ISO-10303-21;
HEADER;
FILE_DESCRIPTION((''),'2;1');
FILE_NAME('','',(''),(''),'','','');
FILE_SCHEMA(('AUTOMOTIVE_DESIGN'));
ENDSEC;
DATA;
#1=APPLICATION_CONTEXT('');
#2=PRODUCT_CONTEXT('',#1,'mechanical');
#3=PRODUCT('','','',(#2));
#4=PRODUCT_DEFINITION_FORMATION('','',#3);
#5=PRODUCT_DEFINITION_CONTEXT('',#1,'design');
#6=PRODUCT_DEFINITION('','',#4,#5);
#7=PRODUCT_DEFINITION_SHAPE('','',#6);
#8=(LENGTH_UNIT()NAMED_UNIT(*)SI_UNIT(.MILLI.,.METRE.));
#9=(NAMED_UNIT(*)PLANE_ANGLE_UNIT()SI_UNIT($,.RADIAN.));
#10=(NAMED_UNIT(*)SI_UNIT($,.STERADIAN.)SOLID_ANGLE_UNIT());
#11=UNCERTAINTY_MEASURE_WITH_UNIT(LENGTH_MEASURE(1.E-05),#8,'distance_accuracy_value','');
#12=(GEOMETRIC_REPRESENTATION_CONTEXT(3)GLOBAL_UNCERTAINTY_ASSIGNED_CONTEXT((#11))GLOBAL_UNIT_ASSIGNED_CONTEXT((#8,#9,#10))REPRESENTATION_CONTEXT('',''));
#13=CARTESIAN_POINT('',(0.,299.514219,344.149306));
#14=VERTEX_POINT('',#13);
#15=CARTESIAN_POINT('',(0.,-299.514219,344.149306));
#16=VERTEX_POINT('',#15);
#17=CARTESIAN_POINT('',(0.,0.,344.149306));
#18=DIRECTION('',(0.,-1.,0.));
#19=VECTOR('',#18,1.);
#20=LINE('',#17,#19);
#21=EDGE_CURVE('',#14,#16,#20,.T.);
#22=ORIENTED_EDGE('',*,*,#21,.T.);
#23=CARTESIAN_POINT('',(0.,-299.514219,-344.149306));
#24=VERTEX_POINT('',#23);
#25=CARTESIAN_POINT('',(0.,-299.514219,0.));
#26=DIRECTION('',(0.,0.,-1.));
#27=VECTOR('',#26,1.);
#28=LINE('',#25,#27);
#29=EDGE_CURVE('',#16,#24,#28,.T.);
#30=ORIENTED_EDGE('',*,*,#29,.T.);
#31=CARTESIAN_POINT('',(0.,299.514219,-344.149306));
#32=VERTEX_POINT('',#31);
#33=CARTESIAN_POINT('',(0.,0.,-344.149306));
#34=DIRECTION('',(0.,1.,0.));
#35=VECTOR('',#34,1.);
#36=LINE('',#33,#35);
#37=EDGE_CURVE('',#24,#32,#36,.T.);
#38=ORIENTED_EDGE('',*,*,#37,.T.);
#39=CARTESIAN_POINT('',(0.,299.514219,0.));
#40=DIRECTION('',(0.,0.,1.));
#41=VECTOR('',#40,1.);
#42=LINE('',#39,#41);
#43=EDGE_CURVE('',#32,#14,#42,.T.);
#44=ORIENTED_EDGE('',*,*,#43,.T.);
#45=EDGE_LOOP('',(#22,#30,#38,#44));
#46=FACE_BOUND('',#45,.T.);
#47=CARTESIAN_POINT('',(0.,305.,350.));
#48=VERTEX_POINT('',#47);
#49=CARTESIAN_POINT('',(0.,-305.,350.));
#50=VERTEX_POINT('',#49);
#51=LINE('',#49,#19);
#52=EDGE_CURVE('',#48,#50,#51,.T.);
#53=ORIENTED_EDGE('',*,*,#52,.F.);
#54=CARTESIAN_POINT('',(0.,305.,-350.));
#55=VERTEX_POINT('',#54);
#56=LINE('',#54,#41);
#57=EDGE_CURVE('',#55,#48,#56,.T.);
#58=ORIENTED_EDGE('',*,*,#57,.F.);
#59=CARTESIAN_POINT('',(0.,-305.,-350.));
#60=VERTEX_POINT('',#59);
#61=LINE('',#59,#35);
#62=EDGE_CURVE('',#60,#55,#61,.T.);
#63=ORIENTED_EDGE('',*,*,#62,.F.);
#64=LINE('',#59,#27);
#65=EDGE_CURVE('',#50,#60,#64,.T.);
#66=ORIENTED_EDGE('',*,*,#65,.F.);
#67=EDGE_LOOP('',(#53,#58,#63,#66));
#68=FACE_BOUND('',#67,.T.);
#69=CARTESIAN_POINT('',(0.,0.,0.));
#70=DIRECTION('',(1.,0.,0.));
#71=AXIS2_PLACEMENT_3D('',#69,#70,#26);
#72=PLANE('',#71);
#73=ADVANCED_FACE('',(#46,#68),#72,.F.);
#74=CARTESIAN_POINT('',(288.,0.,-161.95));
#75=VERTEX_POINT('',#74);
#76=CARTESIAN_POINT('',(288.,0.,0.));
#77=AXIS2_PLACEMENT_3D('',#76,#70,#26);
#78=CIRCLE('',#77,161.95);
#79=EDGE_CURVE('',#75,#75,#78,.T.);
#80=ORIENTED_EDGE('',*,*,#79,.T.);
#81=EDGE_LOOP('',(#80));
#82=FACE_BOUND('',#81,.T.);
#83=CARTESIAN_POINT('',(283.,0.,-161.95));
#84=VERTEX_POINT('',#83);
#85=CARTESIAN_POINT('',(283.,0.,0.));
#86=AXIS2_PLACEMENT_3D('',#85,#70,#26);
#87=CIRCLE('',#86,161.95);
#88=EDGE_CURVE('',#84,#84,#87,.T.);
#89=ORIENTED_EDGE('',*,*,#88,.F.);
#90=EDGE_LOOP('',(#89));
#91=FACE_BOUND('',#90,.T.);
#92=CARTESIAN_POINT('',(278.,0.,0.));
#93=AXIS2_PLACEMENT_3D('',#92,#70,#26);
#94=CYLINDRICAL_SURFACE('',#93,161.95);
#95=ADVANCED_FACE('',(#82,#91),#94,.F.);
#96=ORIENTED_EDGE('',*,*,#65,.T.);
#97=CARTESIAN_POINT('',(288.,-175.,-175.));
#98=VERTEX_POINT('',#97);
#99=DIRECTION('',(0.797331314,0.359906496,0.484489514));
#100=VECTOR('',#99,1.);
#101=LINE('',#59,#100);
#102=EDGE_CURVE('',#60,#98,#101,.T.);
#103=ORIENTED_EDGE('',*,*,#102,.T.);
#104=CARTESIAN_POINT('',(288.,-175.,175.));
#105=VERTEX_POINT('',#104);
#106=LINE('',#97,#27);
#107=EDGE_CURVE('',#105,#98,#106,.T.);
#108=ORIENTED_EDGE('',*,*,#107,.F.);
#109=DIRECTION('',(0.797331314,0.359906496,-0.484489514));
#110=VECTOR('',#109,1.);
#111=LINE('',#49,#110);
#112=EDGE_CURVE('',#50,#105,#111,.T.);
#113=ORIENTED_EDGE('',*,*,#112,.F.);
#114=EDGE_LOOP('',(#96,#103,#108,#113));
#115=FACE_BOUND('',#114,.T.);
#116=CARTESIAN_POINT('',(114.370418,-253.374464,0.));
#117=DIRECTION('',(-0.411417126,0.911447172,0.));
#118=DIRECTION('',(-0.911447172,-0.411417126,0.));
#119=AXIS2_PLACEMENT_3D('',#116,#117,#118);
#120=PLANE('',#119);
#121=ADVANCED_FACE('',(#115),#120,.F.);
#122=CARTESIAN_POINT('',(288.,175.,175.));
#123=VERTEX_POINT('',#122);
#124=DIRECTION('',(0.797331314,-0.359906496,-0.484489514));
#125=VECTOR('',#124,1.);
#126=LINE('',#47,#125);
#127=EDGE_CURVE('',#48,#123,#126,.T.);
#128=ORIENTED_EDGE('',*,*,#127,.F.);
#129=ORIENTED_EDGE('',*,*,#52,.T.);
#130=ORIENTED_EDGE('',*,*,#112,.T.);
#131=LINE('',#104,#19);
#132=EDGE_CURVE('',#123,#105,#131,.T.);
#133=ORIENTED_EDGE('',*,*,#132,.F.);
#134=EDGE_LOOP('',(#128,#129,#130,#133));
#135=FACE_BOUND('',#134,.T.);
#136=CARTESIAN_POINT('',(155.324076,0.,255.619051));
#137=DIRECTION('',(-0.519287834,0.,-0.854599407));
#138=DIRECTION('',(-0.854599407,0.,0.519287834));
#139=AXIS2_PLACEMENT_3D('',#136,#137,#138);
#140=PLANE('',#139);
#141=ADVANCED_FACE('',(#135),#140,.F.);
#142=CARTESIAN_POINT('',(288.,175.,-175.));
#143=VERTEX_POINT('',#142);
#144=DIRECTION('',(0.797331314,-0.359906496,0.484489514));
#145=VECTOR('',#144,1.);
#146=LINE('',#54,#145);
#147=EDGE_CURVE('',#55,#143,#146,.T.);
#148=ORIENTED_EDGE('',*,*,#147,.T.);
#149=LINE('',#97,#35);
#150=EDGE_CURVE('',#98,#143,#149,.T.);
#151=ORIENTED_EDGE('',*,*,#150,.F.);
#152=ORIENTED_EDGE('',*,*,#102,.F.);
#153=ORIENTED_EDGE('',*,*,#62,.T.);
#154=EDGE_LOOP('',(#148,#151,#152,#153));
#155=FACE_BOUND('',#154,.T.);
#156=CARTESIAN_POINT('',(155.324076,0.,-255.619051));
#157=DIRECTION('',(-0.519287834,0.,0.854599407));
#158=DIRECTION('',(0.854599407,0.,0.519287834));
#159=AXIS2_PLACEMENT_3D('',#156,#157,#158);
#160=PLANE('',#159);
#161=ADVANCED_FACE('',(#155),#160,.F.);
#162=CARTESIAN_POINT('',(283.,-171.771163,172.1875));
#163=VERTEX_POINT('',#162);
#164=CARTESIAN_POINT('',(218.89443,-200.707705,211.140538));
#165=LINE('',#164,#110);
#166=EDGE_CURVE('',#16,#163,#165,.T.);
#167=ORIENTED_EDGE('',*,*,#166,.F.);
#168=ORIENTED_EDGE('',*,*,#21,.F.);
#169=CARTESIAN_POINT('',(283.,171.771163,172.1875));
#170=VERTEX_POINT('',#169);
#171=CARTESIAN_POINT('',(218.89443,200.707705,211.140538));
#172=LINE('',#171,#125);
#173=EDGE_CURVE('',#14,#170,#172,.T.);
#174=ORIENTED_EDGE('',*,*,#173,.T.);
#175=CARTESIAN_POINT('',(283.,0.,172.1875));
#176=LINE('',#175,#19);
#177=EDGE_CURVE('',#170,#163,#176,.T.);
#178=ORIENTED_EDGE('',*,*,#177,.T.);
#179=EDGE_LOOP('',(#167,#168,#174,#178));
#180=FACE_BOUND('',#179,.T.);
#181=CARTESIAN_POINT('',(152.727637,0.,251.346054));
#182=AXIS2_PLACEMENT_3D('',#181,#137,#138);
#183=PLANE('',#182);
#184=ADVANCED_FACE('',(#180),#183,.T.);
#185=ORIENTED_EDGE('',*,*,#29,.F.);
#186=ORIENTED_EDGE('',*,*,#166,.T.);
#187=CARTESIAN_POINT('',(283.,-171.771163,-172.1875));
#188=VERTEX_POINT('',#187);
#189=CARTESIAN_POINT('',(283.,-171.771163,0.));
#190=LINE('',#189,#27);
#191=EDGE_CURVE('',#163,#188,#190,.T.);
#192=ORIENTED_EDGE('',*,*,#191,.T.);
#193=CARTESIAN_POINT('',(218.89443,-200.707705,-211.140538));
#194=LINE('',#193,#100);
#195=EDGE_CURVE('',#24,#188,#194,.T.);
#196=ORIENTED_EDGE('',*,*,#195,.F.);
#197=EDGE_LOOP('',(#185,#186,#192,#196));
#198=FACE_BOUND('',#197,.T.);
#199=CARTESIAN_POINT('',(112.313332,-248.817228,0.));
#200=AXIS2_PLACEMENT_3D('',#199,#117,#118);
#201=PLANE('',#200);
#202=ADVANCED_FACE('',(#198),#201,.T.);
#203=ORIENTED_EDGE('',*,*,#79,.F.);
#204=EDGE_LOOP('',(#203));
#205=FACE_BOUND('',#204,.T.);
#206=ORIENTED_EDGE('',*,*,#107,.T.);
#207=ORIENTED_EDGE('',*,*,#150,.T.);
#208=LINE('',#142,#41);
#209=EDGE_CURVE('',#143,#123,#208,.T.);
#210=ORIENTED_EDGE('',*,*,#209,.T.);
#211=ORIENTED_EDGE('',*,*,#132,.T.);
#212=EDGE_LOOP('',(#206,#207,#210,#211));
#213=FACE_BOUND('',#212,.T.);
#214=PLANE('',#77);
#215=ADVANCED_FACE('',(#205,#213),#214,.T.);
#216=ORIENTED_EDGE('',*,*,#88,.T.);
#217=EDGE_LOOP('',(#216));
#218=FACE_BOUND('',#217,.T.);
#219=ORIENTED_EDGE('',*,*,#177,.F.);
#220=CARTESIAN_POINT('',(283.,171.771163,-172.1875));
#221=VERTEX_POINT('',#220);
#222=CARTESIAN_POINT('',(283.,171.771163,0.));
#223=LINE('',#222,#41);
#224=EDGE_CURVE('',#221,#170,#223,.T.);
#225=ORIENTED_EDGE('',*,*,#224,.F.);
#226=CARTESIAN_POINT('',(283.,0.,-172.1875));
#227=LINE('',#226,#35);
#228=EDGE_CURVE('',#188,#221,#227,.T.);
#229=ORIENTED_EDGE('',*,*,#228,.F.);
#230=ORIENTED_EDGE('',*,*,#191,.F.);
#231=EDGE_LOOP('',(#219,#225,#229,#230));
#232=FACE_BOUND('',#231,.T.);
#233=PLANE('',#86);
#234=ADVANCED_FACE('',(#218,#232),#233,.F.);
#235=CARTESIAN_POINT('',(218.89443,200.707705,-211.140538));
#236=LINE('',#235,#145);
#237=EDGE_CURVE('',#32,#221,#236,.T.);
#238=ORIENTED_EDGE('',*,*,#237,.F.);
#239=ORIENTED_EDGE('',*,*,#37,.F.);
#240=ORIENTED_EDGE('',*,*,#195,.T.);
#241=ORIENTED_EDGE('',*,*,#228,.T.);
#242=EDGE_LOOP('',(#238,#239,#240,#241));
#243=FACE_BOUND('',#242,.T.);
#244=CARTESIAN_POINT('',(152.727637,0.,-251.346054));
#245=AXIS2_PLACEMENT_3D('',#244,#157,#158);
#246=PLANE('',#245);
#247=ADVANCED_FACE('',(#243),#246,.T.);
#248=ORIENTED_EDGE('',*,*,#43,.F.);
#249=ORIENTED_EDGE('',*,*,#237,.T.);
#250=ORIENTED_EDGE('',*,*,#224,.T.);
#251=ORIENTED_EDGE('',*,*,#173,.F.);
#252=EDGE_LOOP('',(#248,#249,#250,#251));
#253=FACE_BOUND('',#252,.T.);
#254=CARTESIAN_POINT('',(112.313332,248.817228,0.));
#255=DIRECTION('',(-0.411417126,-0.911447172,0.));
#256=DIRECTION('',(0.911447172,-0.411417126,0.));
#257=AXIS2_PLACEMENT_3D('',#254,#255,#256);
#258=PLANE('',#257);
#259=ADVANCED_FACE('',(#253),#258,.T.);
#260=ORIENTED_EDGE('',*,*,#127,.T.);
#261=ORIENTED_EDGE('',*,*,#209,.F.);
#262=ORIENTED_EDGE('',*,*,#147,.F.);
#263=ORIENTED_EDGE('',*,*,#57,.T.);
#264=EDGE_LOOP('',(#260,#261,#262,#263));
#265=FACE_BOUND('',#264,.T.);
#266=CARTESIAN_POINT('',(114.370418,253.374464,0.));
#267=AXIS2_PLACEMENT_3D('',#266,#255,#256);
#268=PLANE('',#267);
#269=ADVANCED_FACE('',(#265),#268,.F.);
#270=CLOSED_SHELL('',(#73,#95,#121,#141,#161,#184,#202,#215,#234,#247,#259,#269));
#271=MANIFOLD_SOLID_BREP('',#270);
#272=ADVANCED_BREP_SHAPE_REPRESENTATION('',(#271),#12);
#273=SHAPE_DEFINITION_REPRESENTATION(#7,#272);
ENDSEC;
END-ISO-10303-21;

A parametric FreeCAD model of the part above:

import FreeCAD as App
import Part
import Sketcher
from FreeCAD import Vector
Q = App.Units.Quantity


def faces_at(feature, points):
    """Names of the faces that lie closest to the given points."""
    faces = feature.Shape.Faces
    near = lambda p: min(range(len(faces)), key=lambda i: faces[i].distToShape(Part.Vertex(*p))[0])
    return sorted({f"Face{near(p) + 1}" for p in points})

doc = App.newDocument("Part")
body = doc.addObject("PartDesign::Body", "Body")

# Sketch on YZ plane
sketch1 = body.newObject("Sketcher::SketchObject", "Sketch")
sketch1.AttachmentSupport = (doc.getObject("YZ_Plane"), [""])
sketch1.MapMode = "FlatFace"
sketch1.addGeometry([
    Part.LineSegment(Vector(-305, 350, 0), Vector(-305, -350, 0)),
    Part.LineSegment(Vector(-305, -350, 0), Vector(305, -350, 0)),
    Part.LineSegment(Vector(305, -350, 0), Vector(305, 350, 0)),
    Part.LineSegment(Vector(305, 350, 0), Vector(-305, 350, 0)),
], False)
sketch1.addConstraint([
    Sketcher.Constraint("Coincident", 0, 2, 1, 1),
    Sketcher.Constraint("Coincident", 1, 2, 2, 1),
    Sketcher.Constraint("Coincident", 2, 2, 3, 1),
    Sketcher.Constraint("Coincident", 3, 2, 0, 1),
    Sketcher.Constraint("Vertical", 0),
    Sketcher.Constraint("Horizontal", 1),
    Sketcher.Constraint("Vertical", 2),
    Sketcher.Constraint("Horizontal", 3),
    Sketcher.Constraint("Symmetric", 0, 2, 2, 2, -1, 1),
    Sketcher.Constraint("DistanceX", 1, 1, 1, 2, Q("610 mm")),
    Sketcher.Constraint("DistanceY", 0, 2, 0, 1, Q("700 mm")),
])

# Sketch on YZ plane
sketch2 = body.newObject("Sketcher::SketchObject", "Sketch001")
sketch2.AttachmentSupport = (doc.getObject("YZ_Plane"), [""])
sketch2.MapMode = "FlatFace"
sketch2.AttachmentOffset = App.Placement(Vector(0, 0, 288), App.Rotation())
sketch2.addGeometry([
    Part.LineSegment(Vector(-175, 175, 0), Vector(-175, -175, 0)),
    Part.LineSegment(Vector(-175, -175, 0), Vector(175, -175, 0)),
    Part.LineSegment(Vector(175, -175, 0), Vector(175, 175, 0)),
    Part.LineSegment(Vector(175, 175, 0), Vector(-175, 175, 0)),
], False)
sketch2.addConstraint([
    Sketcher.Constraint("Coincident", 0, 2, 1, 1),
    Sketcher.Constraint("Coincident", 1, 2, 2, 1),
    Sketcher.Constraint("Coincident", 2, 2, 3, 1),
    Sketcher.Constraint("Coincident", 3, 2, 0, 1),
    Sketcher.Constraint("Vertical", 0),
    Sketcher.Constraint("Horizontal", 1),
    Sketcher.Constraint("Vertical", 2),
    Sketcher.Constraint("Horizontal", 3),
    Sketcher.Constraint("Symmetric", 0, 2, 2, 2, -1, 1),
    Sketcher.Constraint("Equal", 3, 0),
    Sketcher.Constraint("DistanceX", 1, 1, 1, 2, Q("350 mm")),
])

additiveloft = body.newObject("PartDesign::AdditiveLoft", "AdditiveLoft")
additiveloft.Profile = sketch1
additiveloft.Sections = [sketch2]
doc.recompute()

thickness = body.newObject("PartDesign::Thickness", "Thickness")
thickness.Base = (additiveloft, faces_at(additiveloft, [(0, 0, 0)]))
thickness.Value = 5
thickness.Reversed = True
thickness.Join = "Intersection"

# Sketch on YZ plane
sketch3 = body.newObject("Sketcher::SketchObject", "Sketch002")
sketch3.AttachmentSupport = (doc.getObject("YZ_Plane"), [""])
sketch3.MapMode = "FlatFace"
sketch3.AttachmentOffset = App.Placement(Vector(0, 0, 288), App.Rotation())
sketch3.addGeometry(Part.Circle(Vector(0, 0, 0), Vector(0, 0, 1), 161.95), False)
sketch3.addConstraint([
    Sketcher.Constraint("Coincident", 0, 3, -1, 1),
    Sketcher.Constraint("Diameter", 0, Q("323.9 mm")),
])
pocket1 = body.newObject("PartDesign::Pocket", "Pocket")
pocket1.Profile = sketch3
pocket1.Length = 10

doc.recompute()
